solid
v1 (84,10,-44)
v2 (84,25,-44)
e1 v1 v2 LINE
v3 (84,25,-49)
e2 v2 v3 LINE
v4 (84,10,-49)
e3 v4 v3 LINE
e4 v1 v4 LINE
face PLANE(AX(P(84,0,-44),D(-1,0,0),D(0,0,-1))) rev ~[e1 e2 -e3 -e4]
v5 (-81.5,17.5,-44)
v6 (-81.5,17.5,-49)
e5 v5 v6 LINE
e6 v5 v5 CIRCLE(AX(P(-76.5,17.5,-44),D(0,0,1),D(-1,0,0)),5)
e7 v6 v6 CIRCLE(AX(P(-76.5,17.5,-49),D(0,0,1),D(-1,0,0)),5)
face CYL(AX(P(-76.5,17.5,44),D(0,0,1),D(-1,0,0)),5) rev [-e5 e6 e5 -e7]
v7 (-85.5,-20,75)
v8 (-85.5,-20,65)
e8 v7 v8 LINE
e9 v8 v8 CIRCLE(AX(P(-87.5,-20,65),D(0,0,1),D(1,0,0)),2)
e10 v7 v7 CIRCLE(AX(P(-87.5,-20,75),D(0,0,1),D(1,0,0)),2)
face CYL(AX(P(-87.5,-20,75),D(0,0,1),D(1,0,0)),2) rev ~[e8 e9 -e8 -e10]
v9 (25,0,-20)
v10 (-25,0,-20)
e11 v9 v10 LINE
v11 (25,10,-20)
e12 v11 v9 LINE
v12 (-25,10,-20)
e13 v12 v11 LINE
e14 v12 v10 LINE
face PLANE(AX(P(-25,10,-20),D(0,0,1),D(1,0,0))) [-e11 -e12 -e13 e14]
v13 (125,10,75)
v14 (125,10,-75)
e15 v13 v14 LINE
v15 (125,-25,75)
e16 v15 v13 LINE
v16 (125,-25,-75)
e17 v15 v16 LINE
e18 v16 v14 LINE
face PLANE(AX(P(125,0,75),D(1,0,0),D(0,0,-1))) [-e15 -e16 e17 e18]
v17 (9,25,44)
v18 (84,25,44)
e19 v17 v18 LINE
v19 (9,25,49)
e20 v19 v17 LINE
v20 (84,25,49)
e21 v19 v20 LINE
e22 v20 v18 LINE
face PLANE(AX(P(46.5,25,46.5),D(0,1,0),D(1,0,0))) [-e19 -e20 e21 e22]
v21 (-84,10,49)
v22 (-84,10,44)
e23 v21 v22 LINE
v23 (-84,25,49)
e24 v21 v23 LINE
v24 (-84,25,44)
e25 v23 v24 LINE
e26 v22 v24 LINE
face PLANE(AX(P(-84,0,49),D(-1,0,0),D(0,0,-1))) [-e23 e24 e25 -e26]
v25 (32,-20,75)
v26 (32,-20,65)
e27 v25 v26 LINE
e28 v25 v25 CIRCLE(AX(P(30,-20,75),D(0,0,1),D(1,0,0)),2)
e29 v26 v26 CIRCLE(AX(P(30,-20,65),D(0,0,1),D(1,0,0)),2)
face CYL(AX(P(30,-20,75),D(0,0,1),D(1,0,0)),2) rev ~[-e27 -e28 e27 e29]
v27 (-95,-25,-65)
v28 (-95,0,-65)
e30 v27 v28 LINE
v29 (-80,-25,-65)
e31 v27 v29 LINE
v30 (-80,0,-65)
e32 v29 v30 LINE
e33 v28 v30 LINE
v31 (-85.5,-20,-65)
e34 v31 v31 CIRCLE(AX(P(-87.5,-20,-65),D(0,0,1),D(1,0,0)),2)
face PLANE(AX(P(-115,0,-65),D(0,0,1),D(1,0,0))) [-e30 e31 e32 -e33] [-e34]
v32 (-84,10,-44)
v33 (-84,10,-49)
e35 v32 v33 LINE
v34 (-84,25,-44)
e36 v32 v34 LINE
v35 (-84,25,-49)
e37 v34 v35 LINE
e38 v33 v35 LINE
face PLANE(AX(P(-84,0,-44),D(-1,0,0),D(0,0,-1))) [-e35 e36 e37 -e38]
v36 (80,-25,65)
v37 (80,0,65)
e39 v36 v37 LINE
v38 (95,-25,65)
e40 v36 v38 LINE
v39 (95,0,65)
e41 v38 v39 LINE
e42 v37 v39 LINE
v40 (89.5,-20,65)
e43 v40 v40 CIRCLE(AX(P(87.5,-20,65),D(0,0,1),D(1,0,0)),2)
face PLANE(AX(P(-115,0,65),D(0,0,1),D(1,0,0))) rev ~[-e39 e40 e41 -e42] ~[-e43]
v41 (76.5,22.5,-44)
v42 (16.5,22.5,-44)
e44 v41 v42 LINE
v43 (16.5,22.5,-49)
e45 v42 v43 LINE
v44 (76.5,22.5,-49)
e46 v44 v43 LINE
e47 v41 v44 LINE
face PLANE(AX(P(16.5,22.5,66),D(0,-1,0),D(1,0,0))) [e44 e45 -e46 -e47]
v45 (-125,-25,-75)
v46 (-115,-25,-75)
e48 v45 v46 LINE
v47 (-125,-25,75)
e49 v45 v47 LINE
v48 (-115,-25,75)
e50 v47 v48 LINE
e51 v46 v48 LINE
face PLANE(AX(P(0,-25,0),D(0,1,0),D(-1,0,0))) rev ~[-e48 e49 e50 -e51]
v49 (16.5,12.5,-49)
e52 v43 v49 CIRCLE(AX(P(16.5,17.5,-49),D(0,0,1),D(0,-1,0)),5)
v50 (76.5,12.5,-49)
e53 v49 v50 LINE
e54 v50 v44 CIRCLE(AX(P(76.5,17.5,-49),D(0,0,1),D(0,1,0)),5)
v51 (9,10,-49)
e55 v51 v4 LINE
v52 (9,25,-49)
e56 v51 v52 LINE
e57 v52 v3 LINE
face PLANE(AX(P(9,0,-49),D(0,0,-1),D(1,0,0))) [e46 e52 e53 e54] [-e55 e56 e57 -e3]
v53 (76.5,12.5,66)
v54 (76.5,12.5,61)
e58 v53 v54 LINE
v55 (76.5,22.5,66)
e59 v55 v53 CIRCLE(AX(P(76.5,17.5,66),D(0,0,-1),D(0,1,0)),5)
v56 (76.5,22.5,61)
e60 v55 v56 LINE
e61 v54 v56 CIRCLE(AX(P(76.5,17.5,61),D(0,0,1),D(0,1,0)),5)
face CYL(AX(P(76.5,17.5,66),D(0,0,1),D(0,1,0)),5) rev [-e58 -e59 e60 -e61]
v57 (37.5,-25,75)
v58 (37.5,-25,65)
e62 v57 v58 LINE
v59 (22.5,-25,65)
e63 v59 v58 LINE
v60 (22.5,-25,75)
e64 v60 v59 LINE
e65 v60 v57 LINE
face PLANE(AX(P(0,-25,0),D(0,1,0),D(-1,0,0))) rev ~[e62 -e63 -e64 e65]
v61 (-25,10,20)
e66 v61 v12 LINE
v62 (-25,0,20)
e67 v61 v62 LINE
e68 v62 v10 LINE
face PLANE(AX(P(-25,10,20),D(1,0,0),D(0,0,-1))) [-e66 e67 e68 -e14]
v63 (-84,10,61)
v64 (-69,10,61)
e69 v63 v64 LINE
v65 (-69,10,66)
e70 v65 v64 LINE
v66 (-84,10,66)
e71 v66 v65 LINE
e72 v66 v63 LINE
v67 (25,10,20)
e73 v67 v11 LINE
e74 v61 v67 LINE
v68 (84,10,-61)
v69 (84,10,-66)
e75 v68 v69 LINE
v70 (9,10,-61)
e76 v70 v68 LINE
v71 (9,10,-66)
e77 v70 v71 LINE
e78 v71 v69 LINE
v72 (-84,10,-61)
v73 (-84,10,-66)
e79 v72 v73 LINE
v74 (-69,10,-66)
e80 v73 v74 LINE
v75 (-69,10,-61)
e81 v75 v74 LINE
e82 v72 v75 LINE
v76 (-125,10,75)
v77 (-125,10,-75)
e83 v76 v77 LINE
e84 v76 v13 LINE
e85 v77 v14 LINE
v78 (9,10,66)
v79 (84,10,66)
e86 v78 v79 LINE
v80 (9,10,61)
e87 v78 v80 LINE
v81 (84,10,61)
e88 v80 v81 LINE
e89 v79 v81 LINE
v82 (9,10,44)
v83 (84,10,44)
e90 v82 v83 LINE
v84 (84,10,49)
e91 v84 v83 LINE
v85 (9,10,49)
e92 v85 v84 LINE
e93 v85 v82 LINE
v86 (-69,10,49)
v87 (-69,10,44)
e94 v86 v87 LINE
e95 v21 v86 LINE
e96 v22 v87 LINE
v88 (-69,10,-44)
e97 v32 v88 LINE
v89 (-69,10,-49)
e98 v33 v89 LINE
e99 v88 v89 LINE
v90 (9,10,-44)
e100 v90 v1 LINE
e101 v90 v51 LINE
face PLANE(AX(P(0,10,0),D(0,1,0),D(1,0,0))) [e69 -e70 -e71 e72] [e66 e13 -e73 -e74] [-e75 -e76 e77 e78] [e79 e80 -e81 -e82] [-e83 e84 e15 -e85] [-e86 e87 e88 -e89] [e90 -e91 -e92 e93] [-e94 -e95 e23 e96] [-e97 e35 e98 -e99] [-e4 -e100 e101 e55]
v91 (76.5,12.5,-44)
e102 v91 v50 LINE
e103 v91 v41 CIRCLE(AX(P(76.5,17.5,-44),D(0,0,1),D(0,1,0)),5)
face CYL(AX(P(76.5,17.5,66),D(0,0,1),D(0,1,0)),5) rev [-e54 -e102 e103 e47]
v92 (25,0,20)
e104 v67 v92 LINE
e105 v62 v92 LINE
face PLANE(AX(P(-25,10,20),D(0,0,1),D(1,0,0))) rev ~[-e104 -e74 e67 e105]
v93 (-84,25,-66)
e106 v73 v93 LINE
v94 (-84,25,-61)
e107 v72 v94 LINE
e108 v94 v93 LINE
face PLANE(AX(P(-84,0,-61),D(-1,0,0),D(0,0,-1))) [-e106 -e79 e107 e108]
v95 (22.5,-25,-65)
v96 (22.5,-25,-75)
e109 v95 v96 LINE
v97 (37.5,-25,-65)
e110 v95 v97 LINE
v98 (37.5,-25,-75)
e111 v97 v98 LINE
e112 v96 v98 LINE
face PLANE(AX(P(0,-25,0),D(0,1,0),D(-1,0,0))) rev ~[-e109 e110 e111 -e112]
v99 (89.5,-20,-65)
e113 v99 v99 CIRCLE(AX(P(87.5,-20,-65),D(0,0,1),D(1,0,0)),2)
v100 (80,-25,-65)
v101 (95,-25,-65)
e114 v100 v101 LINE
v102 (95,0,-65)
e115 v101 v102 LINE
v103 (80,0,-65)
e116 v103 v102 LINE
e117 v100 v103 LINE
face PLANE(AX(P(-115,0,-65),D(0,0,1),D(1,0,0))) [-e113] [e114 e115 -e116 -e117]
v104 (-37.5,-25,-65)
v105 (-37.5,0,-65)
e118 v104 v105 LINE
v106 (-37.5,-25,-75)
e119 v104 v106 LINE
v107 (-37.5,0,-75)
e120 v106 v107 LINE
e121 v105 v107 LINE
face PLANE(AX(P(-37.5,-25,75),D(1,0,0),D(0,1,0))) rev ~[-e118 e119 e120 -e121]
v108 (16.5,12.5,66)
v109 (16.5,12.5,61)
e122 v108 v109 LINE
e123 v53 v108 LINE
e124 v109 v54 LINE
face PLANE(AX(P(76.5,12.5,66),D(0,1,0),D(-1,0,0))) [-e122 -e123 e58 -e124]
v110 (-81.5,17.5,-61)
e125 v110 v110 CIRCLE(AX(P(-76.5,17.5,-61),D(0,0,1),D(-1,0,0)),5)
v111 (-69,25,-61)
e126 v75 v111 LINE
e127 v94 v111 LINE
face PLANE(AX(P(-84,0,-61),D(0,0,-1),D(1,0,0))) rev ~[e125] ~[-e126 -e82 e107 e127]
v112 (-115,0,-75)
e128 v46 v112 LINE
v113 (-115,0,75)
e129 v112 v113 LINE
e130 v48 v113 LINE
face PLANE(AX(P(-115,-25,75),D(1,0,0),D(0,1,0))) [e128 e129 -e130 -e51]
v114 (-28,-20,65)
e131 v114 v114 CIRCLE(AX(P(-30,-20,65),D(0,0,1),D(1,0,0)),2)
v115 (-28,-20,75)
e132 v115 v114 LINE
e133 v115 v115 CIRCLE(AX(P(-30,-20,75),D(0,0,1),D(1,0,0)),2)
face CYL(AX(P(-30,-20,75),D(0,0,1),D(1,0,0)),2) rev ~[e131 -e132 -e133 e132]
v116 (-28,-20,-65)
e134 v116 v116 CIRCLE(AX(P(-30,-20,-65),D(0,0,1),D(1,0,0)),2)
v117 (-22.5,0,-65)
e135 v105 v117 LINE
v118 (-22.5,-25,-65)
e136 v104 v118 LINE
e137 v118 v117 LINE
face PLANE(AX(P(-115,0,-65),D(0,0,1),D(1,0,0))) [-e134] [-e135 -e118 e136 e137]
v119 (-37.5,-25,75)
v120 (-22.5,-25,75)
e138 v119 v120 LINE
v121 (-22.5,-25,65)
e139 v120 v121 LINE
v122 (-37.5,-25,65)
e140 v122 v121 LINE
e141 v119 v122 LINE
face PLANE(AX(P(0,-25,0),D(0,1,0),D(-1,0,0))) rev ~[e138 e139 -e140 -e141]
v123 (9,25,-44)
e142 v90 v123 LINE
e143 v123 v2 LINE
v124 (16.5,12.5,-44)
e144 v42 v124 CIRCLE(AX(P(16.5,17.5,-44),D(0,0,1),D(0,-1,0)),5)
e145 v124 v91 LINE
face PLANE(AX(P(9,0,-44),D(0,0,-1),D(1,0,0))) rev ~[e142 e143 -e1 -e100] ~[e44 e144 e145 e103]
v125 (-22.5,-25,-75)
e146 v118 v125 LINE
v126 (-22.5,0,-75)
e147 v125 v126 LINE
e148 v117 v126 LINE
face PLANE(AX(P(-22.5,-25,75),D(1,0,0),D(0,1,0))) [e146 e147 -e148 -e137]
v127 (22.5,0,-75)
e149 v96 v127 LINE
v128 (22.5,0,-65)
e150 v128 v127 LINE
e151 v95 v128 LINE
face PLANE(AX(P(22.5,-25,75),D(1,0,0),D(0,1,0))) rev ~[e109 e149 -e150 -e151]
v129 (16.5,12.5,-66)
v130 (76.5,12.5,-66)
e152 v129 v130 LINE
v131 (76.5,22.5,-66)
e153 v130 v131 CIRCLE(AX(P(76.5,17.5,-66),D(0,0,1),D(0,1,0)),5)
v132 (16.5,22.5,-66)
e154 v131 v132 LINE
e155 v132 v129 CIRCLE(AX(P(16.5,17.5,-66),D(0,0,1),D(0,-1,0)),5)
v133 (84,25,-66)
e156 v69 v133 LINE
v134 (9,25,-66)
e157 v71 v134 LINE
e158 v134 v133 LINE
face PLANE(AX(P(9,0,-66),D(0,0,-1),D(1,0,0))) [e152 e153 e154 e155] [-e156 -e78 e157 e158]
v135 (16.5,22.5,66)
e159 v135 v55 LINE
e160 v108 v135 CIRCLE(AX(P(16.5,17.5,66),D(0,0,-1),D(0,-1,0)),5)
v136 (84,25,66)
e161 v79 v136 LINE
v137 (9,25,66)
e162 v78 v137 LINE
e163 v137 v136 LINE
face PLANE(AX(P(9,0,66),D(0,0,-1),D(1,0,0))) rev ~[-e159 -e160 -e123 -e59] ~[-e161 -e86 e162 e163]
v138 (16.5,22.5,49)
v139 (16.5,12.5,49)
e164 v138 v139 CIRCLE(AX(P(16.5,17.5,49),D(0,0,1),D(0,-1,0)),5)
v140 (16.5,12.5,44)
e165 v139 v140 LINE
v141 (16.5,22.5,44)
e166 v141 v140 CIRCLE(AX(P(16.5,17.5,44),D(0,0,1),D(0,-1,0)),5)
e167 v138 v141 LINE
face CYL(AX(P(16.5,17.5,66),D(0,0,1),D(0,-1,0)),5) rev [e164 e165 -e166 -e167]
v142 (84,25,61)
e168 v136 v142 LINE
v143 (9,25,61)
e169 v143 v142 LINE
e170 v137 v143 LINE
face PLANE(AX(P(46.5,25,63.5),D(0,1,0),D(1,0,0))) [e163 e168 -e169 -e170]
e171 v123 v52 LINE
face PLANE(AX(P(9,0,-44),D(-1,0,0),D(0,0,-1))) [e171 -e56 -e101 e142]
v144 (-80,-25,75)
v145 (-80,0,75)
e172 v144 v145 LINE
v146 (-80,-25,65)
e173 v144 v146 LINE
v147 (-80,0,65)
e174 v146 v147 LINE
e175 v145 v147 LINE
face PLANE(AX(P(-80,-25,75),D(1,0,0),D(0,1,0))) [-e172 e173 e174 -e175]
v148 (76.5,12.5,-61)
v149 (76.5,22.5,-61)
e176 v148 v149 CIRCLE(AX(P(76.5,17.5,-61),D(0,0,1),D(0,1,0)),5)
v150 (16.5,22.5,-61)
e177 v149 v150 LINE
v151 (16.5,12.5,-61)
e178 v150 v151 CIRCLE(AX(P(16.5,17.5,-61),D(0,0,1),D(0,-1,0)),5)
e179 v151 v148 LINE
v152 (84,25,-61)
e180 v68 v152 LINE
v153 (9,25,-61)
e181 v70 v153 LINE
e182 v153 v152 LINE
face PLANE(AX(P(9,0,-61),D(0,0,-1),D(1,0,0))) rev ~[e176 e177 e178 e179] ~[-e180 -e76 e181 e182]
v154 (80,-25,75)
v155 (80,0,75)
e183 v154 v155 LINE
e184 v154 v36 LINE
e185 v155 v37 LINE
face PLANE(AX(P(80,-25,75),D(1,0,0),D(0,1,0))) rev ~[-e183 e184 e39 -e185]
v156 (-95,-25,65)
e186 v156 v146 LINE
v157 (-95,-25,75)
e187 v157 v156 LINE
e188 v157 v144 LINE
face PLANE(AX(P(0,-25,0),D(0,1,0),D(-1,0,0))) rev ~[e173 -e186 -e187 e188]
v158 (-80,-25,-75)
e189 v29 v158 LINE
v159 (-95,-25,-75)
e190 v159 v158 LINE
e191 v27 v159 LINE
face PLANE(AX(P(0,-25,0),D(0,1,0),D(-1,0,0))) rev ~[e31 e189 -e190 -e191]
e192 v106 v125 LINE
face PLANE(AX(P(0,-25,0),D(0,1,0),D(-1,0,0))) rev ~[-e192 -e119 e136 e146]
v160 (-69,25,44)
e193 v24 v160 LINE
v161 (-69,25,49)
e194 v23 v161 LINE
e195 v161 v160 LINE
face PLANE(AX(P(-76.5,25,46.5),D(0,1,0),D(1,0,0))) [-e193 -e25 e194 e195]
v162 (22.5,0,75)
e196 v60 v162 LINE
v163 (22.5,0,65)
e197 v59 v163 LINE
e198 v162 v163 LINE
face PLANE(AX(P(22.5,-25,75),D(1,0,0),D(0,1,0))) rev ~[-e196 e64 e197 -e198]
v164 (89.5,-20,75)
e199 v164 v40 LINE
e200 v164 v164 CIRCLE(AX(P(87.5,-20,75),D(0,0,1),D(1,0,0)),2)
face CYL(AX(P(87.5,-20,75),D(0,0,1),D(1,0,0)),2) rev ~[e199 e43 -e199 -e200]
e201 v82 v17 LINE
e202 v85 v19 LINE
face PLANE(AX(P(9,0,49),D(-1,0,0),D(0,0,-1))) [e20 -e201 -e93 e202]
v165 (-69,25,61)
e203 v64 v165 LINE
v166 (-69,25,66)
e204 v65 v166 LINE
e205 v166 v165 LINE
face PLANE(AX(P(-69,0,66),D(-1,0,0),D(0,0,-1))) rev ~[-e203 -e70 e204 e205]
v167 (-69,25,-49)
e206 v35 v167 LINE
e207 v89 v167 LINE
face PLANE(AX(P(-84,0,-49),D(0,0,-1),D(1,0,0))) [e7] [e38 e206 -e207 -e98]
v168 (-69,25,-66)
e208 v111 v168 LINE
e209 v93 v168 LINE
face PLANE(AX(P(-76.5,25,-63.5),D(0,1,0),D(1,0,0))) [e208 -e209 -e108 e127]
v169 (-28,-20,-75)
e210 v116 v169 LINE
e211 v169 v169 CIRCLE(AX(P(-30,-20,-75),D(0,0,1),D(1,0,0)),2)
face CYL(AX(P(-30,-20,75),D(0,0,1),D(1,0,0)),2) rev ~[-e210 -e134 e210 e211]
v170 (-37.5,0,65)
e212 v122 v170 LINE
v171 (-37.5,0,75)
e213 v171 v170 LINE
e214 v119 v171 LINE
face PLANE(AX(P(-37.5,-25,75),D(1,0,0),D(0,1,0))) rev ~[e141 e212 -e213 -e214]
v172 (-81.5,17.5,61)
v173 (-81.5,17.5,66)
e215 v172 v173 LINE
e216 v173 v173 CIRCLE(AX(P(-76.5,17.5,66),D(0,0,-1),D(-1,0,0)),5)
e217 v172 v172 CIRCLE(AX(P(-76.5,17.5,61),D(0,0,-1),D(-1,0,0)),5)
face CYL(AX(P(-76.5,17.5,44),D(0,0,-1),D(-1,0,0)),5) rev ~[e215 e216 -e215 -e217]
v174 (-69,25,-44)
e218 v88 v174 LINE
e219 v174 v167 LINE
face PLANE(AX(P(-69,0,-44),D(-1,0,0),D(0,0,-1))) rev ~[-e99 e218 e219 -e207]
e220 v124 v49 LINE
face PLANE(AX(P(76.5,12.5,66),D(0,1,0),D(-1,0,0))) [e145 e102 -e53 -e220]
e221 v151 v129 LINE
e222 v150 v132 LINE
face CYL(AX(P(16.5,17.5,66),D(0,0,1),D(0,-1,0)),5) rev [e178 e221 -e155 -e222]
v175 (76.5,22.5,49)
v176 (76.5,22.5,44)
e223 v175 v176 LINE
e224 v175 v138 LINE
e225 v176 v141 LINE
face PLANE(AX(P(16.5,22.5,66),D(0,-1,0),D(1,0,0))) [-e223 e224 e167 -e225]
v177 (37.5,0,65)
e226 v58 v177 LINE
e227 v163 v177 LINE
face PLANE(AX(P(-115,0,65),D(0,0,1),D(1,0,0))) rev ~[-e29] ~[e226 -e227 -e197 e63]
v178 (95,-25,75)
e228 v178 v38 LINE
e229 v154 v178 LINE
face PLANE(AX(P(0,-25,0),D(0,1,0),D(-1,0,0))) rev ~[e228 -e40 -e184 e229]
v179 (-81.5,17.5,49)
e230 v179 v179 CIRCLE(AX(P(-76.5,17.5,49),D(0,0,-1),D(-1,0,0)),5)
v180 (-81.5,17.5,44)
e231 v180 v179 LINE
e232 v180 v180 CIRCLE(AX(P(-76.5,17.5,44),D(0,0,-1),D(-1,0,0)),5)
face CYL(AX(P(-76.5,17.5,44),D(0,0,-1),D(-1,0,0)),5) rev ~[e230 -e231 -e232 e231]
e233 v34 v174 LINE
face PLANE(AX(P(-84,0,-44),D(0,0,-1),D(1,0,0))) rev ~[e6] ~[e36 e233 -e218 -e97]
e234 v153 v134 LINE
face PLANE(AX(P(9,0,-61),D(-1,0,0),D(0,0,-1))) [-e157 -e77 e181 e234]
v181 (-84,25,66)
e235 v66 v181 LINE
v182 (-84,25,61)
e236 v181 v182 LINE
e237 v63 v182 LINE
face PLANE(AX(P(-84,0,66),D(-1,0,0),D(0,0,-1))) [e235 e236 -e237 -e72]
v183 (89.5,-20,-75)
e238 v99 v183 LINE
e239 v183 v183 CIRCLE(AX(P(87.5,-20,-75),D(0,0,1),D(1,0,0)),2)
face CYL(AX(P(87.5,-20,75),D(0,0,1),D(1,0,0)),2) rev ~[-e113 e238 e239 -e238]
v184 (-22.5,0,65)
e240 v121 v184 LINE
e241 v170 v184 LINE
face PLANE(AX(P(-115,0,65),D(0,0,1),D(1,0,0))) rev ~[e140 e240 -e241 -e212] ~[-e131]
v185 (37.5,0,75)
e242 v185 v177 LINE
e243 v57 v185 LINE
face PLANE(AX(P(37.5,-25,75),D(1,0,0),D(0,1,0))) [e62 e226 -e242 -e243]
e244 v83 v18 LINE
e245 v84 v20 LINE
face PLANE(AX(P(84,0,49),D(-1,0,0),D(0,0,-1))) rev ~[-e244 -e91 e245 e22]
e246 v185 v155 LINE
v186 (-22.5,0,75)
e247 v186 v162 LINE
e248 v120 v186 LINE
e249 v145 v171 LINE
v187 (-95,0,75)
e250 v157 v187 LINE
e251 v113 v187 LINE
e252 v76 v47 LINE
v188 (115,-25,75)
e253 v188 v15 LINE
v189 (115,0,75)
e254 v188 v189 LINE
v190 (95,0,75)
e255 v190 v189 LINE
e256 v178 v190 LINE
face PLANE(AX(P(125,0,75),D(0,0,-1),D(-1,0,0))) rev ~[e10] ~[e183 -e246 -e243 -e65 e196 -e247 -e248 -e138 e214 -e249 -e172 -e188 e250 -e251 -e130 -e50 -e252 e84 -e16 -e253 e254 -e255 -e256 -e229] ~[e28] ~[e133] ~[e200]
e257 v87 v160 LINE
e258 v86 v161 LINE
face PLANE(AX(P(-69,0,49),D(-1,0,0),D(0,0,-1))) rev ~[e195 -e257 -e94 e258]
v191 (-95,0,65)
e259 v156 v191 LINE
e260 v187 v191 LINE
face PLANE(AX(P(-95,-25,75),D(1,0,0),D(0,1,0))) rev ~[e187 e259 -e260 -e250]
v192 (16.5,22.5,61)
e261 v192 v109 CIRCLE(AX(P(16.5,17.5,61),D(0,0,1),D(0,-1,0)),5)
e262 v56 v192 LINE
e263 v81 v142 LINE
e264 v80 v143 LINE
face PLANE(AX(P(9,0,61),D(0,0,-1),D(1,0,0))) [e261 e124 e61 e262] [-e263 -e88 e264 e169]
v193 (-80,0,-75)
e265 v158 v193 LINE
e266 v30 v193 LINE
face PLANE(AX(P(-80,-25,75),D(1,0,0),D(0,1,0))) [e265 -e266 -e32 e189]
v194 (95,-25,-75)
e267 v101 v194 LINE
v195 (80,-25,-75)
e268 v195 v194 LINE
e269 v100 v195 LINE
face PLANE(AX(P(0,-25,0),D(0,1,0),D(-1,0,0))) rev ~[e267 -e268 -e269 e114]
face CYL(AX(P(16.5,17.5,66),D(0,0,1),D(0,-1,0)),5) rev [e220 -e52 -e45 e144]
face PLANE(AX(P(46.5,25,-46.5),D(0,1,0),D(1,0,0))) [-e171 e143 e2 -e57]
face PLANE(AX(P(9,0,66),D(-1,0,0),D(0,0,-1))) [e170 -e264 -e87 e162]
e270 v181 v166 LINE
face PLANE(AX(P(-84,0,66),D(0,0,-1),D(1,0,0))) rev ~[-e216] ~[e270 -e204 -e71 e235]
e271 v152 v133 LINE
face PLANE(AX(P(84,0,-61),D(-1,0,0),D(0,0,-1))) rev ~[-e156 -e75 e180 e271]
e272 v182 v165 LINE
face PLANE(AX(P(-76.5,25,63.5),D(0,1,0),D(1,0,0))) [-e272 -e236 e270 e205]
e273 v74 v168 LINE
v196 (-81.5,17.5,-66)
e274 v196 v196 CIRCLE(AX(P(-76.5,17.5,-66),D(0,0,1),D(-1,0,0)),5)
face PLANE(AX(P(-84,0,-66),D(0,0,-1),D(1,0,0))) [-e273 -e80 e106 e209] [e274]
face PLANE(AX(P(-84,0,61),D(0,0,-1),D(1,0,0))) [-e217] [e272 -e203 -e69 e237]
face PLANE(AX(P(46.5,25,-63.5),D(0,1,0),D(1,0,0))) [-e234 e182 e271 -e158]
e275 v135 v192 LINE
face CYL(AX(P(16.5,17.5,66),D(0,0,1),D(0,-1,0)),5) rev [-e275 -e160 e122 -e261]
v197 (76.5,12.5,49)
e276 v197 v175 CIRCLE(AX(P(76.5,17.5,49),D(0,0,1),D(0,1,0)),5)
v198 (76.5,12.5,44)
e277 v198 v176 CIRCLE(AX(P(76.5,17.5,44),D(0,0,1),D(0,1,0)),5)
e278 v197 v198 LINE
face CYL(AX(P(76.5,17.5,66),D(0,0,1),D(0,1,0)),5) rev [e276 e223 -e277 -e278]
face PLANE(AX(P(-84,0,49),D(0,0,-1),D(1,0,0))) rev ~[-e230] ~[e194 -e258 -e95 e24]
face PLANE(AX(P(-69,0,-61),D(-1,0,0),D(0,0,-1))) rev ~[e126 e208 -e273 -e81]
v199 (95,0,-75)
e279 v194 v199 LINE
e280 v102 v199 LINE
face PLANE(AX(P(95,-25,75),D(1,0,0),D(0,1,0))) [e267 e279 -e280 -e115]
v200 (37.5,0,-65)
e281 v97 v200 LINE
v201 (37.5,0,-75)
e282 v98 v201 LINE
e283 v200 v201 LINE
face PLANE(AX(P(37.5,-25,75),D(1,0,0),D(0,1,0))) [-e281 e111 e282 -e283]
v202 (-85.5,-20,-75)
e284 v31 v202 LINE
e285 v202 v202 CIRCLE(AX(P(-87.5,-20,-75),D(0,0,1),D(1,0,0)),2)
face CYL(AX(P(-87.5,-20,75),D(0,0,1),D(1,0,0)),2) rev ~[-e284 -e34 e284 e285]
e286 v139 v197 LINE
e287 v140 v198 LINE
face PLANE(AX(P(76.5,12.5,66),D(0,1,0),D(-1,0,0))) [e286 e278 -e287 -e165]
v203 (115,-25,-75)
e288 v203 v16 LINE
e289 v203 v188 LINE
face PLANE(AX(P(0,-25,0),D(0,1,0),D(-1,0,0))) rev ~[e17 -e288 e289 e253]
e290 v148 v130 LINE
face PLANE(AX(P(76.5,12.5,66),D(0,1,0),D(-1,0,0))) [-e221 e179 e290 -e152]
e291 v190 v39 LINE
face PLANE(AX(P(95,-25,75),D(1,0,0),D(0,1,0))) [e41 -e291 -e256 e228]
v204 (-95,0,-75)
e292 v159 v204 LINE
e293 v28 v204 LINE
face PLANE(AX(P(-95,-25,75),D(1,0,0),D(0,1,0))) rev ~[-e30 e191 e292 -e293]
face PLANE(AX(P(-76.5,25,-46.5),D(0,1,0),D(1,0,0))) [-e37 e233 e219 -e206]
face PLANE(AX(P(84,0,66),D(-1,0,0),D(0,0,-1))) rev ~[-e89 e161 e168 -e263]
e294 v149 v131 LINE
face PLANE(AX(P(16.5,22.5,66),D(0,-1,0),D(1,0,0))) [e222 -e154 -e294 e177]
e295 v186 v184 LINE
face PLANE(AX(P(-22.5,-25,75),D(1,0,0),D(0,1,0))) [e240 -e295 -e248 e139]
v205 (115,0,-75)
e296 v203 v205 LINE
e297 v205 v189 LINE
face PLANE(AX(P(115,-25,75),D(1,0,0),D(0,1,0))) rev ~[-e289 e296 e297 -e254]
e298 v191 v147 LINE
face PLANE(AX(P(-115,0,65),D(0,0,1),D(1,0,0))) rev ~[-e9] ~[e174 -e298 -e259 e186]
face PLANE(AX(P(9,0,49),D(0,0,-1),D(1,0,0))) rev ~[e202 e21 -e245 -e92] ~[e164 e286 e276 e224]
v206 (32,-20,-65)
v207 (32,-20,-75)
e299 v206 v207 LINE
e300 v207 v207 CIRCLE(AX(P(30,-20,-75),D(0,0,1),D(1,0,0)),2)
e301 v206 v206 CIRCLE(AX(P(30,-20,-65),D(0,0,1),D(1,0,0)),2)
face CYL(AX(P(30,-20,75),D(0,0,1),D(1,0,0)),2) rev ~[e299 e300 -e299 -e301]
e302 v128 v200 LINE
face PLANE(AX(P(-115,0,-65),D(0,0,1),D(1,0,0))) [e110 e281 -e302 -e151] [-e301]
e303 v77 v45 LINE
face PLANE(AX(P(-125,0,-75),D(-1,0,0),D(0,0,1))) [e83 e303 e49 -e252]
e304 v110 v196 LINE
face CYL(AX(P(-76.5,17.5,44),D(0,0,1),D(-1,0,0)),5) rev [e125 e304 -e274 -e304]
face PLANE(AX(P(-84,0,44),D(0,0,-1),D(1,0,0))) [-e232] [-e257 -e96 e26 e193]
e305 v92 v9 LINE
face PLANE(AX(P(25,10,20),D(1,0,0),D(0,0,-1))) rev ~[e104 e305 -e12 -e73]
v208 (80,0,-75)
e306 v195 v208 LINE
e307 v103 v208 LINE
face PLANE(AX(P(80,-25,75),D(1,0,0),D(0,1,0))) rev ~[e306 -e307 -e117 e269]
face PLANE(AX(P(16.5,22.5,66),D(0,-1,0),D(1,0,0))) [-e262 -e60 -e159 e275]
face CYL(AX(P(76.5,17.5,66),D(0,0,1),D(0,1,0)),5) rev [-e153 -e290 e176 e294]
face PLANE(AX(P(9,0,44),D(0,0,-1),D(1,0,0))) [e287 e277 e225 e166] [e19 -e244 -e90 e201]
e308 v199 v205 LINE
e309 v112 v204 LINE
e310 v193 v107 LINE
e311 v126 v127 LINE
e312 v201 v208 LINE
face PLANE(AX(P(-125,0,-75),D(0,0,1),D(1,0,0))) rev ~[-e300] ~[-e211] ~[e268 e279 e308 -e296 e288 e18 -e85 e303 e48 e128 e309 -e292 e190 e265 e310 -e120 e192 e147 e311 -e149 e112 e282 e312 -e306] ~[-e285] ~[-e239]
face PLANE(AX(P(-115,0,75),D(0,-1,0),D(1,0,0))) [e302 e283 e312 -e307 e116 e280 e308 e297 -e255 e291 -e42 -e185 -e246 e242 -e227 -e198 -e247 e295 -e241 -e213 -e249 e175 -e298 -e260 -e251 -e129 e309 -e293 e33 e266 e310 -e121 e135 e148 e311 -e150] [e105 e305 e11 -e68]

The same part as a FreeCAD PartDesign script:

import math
import FreeCAD as App
import Part
import Sketcher

V = App.Vector
Q = App.Units.Quantity

doc = App.newDocument("Part")
body = doc.addObject("PartDesign::Body", "Body")

sketch1 = doc.addObject("Sketcher::SketchObject", "Sketch")
body.addObject(sketch1)
sketch1.AttachmentSupport = (doc.XZ_Plane, [""])
sketch1.MapMode = "FlatFace"
sketch1.addGeometry([
    Part.LineSegment(V(-125, -75, 0), V(-125, 75, 0)),
    Part.LineSegment(V(-125, 75, 0), V(125, 75, 0)),
    Part.LineSegment(V(125, 75, 0), V(125, -75, 0)),
    Part.LineSegment(V(125, -75, 0), V(-125, -75, 0)),
    Part.LineSegment(V(-69, 66, 0), V(-84, 66, 0)),
    Part.LineSegment(V(-84, 66, 0), V(-84, 61, 0)),
    Part.LineSegment(V(-84, 61, 0), V(-69, 61, 0)),
    Part.LineSegment(V(-69, 61, 0), V(-69, 66, 0)),
    Part.LineSegment(V(-69, 49, 0), V(-84, 49, 0)),
    Part.LineSegment(V(-84, 49, 0), V(-84, 44, 0)),
    Part.LineSegment(V(-84, 44, 0), V(-69, 44, 0)),
    Part.LineSegment(V(-69, 44, 0), V(-69, 49, 0)),
    Part.LineSegment(V(84, 66, 0), V(9, 66, 0)),
    Part.LineSegment(V(9, 66, 0), V(9, 61, 0)),
    Part.LineSegment(V(9, 61, 0), V(84, 61, 0)),
    Part.LineSegment(V(84, 61, 0), V(84, 66, 0)),
    Part.LineSegment(V(84, 49, 0), V(9, 49, 0)),
    Part.LineSegment(V(9, 49, 0), V(9, 44, 0)),
    Part.LineSegment(V(9, 44, 0), V(84, 44, 0)),
    Part.LineSegment(V(84, 44, 0), V(84, 49, 0)),
    Part.LineSegment(V(-69, -44, 0), V(-84, -44, 0)),
    Part.LineSegment(V(-84, -44, 0), V(-84, -49, 0)),
    Part.LineSegment(V(-84, -49, 0), V(-69, -49, 0)),
    Part.LineSegment(V(-69, -49, 0), V(-69, -44, 0)),
    Part.LineSegment(V(-69, -61, 0), V(-84, -61, 0)),
    Part.LineSegment(V(-84, -61, 0), V(-84, -66, 0)),
    Part.LineSegment(V(-84, -66, 0), V(-69, -66, 0)),
    Part.LineSegment(V(-69, -66, 0), V(-69, -61, 0)),
    Part.LineSegment(V(84, -44, 0), V(9, -44, 0)),
    Part.LineSegment(V(9, -44, 0), V(9, -49, 0)),
    Part.LineSegment(V(9, -49, 0), V(84, -49, 0)),
    Part.LineSegment(V(84, -49, 0), V(84, -44, 0)),
    Part.LineSegment(V(84, -61, 0), V(9, -61, 0)),
    Part.LineSegment(V(9, -61, 0), V(9, -66, 0)),
    Part.LineSegment(V(9, -66, 0), V(84, -66, 0)),
    Part.LineSegment(V(84, -66, 0), V(84, -61, 0)),
], False)
sketch1.addConstraint([
    Sketcher.Constraint("Coincident", 0, 2, 1, 1),
    Sketcher.Constraint("Coincident", 1, 2, 2, 1),
    Sketcher.Constraint("Coincident", 2, 2, 3, 1),
    Sketcher.Constraint("Coincident", 3, 2, 0, 1),
    Sketcher.Constraint("Coincident", 4, 2, 5, 1),
    Sketcher.Constraint("Coincident", 5, 2, 6, 1),
    Sketcher.Constraint("Coincident", 6, 2, 7, 1),
    Sketcher.Constraint("Coincident", 7, 2, 4, 1),
    Sketcher.Constraint("Coincident", 8, 2, 9, 1),
    Sketcher.Constraint("Coincident", 9, 2, 10, 1),
    Sketcher.Constraint("Coincident", 10, 2, 11, 1),
    Sketcher.Constraint("Coincident", 11, 2, 8, 1),
    Sketcher.Constraint("Coincident", 12, 2, 13, 1),
    Sketcher.Constraint("Coincident", 13, 2, 14, 1),
    Sketcher.Constraint("Coincident", 14, 2, 15, 1),
    Sketcher.Constraint("Coincident", 15, 2, 12, 1),
    Sketcher.Constraint("Coincident", 16, 2, 17, 1),
    Sketcher.Constraint("Coincident", 17, 2, 18, 1),
    Sketcher.Constraint("Coincident", 18, 2, 19, 1),
    Sketcher.Constraint("Coincident", 19, 2, 16, 1),
    Sketcher.Constraint("Coincident", 20, 2, 21, 1),
    Sketcher.Constraint("Coincident", 21, 2, 22, 1),
    Sketcher.Constraint("Coincident", 22, 2, 23, 1),
    Sketcher.Constraint("Coincident", 23, 2, 20, 1),
    Sketcher.Constraint("Coincident", 24, 2, 25, 1),
    Sketcher.Constraint("Coincident", 25, 2, 26, 1),
    Sketcher.Constraint("Coincident", 26, 2, 27, 1),
    Sketcher.Constraint("Coincident", 27, 2, 24, 1),
    Sketcher.Constraint("Coincident", 28, 2, 29, 1),
    Sketcher.Constraint("Coincident", 29, 2, 30, 1),
    Sketcher.Constraint("Coincident", 30, 2, 31, 1),
    Sketcher.Constraint("Coincident", 31, 2, 28, 1),
    Sketcher.Constraint("Coincident", 32, 2, 33, 1),
    Sketcher.Constraint("Coincident", 33, 2, 34, 1),
    Sketcher.Constraint("Coincident", 34, 2, 35, 1),
    Sketcher.Constraint("Coincident", 35, 2, 32, 1),
    Sketcher.Constraint("Vertical", 0),
    Sketcher.Constraint("Horizontal", 1),
    Sketcher.Constraint("Vertical", 2),
    Sketcher.Constraint("Horizontal", 3),
    Sketcher.Constraint("Horizontal", 4),
    Sketcher.Constraint("Vertical", 5),
    Sketcher.Constraint("Horizontal", 6),
    Sketcher.Constraint("Vertical", 7),
    Sketcher.Constraint("Horizontal", 8),
    Sketcher.Constraint("Vertical", 9),
    Sketcher.Constraint("Horizontal", 10),
    Sketcher.Constraint("Vertical", 11),
    Sketcher.Constraint("Horizontal", 12),
    Sketcher.Constraint("Vertical", 13),
    Sketcher.Constraint("Horizontal", 14),
    Sketcher.Constraint("Vertical", 15),
    Sketcher.Constraint("Horizontal", 16),
    Sketcher.Constraint("Vertical", 17),
    Sketcher.Constraint("Horizontal", 18),
    Sketcher.Constraint("Vertical", 19),
    Sketcher.Constraint("Horizontal", 20),
    Sketcher.Constraint("Vertical", 21),
    Sketcher.Constraint("Horizontal", 22),
    Sketcher.Constraint("Vertical", 23),
    Sketcher.Constraint("Horizontal", 24),
    Sketcher.Constraint("Vertical", 25),
    Sketcher.Constraint("Horizontal", 26),
    Sketcher.Constraint("Vertical", 27),
    Sketcher.Constraint("Horizontal", 28),
    Sketcher.Constraint("Vertical", 29),
    Sketcher.Constraint("Horizontal", 30),
    Sketcher.Constraint("Vertical", 31),
    Sketcher.Constraint("Horizontal", 32),
    Sketcher.Constraint("Vertical", 33),
    Sketcher.Constraint("Horizontal", 34),
    Sketcher.Constraint("Vertical", 35),
    Sketcher.Constraint("Symmetric", 0, 2, 2, 2, -1, 1),
    Sketcher.Constraint("Symmetric", 18, 2, 20, 2, -1, 1),
    Sketcher.Constraint("Symmetric", 14, 2, 24, 2, -1, 1),
    Sketcher.Constraint("Symmetric", 8, 2, 30, 2, -1, 1),
    Sketcher.Constraint("Symmetric", 4, 2, 34, 2, -1, 1),
    Sketcher.Constraint("Symmetric", 5, 2, 14, 2, -2),
    Sketcher.Constraint("Symmetric", 9, 2, 18, 2, -2),
    Sketcher.Constraint("Symmetric", 11, 2, 22, 2, -1),
    Sketcher.Constraint("Symmetric", 7, 2, 26, 2, -1),
    Sketcher.Constraint("Symmetric", 17, 2, 28, 2, -1),
    Sketcher.Constraint("Symmetric", 13, 2, 32, 2, -1),
    Sketcher.Constraint("Horizontal", 7, 2, 12, 2),
    Sketcher.Constraint("Horizontal", 11, 2, 16, 2),
    Sketcher.Constraint("Vertical", 5, 2, 8, 2),
    Sketcher.Constraint("Vertical", 7, 2, 10, 2),
    Sketcher.Constraint("Vertical", 13, 2, 16, 2),
    Sketcher.Constraint("Equal", 7, 9),
    Sketcher.Constraint("DistanceX", 1, 1, 1, 2, Q("250 mm")),
    Sketcher.Constraint("DistanceX", 4, 2, 4, 1, Q("15 mm")),
    Sketcher.Constraint("DistanceX", 12, 2, 12, 1, Q("75 mm")),
    Sketcher.Constraint("DistanceY", 0, 1, 0, 2, Q("150 mm")),
    Sketcher.Constraint("DistanceY", 5, 2, 5, 1, Q("5 mm")),
    Sketcher.Constraint("DistanceX", 4, 2, -1, 1, Q("84 mm")),
    Sketcher.Constraint("DistanceY", -1, 1, 4, 2, Q("66 mm")),
    Sketcher.Constraint("DistanceY", -1, 1, 8, 2, Q("49 mm")),
])
pad1 = doc.addObject("PartDesign::Pad", "Pad")
body.addObject(pad1)
pad1.Profile = sketch1
pad1.Length = 10
pad1.Reversed = True

sketch2 = doc.addObject("Sketcher::SketchObject", "Sketch001")
body.addObject(sketch2)
sketch2.AttachmentSupport = (doc.XZ_Plane, [""])
sketch2.MapMode = "FlatFace"
sketch2.addGeometry([
    Part.LineSegment(V(9, 61, 0), V(9, 66, 0)),
    Part.LineSegment(V(9, 66, 0), V(84, 66, 0)),
    Part.LineSegment(V(84, 66, 0), V(84, 61, 0)),
    Part.LineSegment(V(84, 61, 0), V(9, 61, 0)),
    Part.LineSegment(V(-84, 61, 0), V(-84, 66, 0)),
    Part.LineSegment(V(-84, 66, 0), V(-69, 66, 0)),
    Part.LineSegment(V(-69, 66, 0), V(-69, 61, 0)),
    Part.LineSegment(V(-69, 61, 0), V(-84, 61, 0)),
    Part.LineSegment(V(-84, 44, 0), V(-84, 49, 0)),
    Part.LineSegment(V(-84, 49, 0), V(-69, 49, 0)),
    Part.LineSegment(V(-69, 49, 0), V(-69, 44, 0)),
    Part.LineSegment(V(-69, 44, 0), V(-84, 44, 0)),
    Part.LineSegment(V(9, 44, 0), V(9, 49, 0)),
    Part.LineSegment(V(9, 49, 0), V(84, 49, 0)),
    Part.LineSegment(V(84, 49, 0), V(84, 44, 0)),
    Part.LineSegment(V(84, 44, 0), V(9, 44, 0)),
    Part.LineSegment(V(9, -49, 0), V(9, -44, 0)),
    Part.LineSegment(V(9, -44, 0), V(84, -44, 0)),
    Part.LineSegment(V(84, -44, 0), V(84, -49, 0)),
    Part.LineSegment(V(84, -49, 0), V(9, -49, 0)),
    Part.LineSegment(V(9, -66, 0), V(9, -61, 0)),
    Part.LineSegment(V(9, -61, 0), V(84, -61, 0)),
    Part.LineSegment(V(84, -61, 0), V(84, -66, 0)),
    Part.LineSegment(V(84, -66, 0), V(9, -66, 0)),
    Part.LineSegment(V(-84, -66, 0), V(-84, -61, 0)),
    Part.LineSegment(V(-84, -61, 0), V(-69, -61, 0)),
    Part.LineSegment(V(-69, -61, 0), V(-69, -66, 0)),
    Part.LineSegment(V(-69, -66, 0), V(-84, -66, 0)),
    Part.LineSegment(V(-84, -49, 0), V(-84, -44, 0)),
    Part.LineSegment(V(-84, -44, 0), V(-69, -44, 0)),
    Part.LineSegment(V(-69, -44, 0), V(-69, -49, 0)),
    Part.LineSegment(V(-69, -49, 0), V(-84, -49, 0)),
], False)
sketch2.addConstraint([
    Sketcher.Constraint("Coincident", 0, 2, 1, 1),
    Sketcher.Constraint("Coincident", 1, 2, 2, 1),
    Sketcher.Constraint("Coincident", 2, 2, 3, 1),
    Sketcher.Constraint("Coincident", 3, 2, 0, 1),
    Sketcher.Constraint("Coincident", 4, 2, 5, 1),
    Sketcher.Constraint("Coincident", 5, 2, 6, 1),
    Sketcher.Constraint("Coincident", 6, 2, 7, 1),
    Sketcher.Constraint("Coincident", 7, 2, 4, 1),
    Sketcher.Constraint("Coincident", 8, 2, 9, 1),
    Sketcher.Constraint("Coincident", 9, 2, 10, 1),
    Sketcher.Constraint("Coincident", 10, 2, 11, 1),
    Sketcher.Constraint("Coincident", 11, 2, 8, 1),
    Sketcher.Constraint("Coincident", 12, 2, 13, 1),
    Sketcher.Constraint("Coincident", 13, 2, 14, 1),
    Sketcher.Constraint("Coincident", 14, 2, 15, 1),
    Sketcher.Constraint("Coincident", 15, 2, 12, 1),
    Sketcher.Constraint("Coincident", 16, 2, 17, 1),
    Sketcher.Constraint("Coincident", 17, 2, 18, 1),
    Sketcher.Constraint("Coincident", 18, 2, 19, 1),
    Sketcher.Constraint("Coincident", 19, 2, 16, 1),
    Sketcher.Constraint("Coincident", 20, 2, 21, 1),
    Sketcher.Constraint("Coincident", 21, 2, 22, 1),
    Sketcher.Constraint("Coincident", 22, 2, 23, 1),
    Sketcher.Constraint("Coincident", 23, 2, 20, 1),
    Sketcher.Constraint("Coincident", 24, 2, 25, 1),
    Sketcher.Constraint("Coincident", 25, 2, 26, 1),
    Sketcher.Constraint("Coincident", 26, 2, 27, 1),
    Sketcher.Constraint("Coincident", 27, 2, 24, 1),
    Sketcher.Constraint("Coincident", 28, 2, 29, 1),
    Sketcher.Constraint("Coincident", 29, 2, 30, 1),
    Sketcher.Constraint("Coincident", 30, 2, 31, 1),
    Sketcher.Constraint("Coincident", 31, 2, 28, 1),
    Sketcher.Constraint("Vertical", 0),
    Sketcher.Constraint("Horizontal", 1),
    Sketcher.Constraint("Vertical", 2),
    Sketcher.Constraint("Horizontal", 3),
    Sketcher.Constraint("Vertical", 4),
    Sketcher.Constraint("Horizontal", 5),
    Sketcher.Constraint("Vertical", 6),
    Sketcher.Constraint("Horizontal", 7),
    Sketcher.Constraint("Vertical", 8),
    Sketcher.Constraint("Horizontal", 9),
    Sketcher.Constraint("Vertical", 10),
    Sketcher.Constraint("Horizontal", 11),
    Sketcher.Constraint("Vertical", 12),
    Sketcher.Constraint("Horizontal", 13),
    Sketcher.Constraint("Vertical", 14),
    Sketcher.Constraint("Horizontal", 15),
    Sketcher.Constraint("Vertical", 16),
    Sketcher.Constraint("Horizontal", 17),
    Sketcher.Constraint("Vertical", 18),
    Sketcher.Constraint("Horizontal", 19),
    Sketcher.Constraint("Vertical", 20),
    Sketcher.Constraint("Horizontal", 21),
    Sketcher.Constraint("Vertical", 22),
    Sketcher.Constraint("Horizontal", 23),
    Sketcher.Constraint("Vertical", 24),
    Sketcher.Constraint("Horizontal", 25),
    Sketcher.Constraint("Vertical", 26),
    Sketcher.Constraint("Horizontal", 27),
    Sketcher.Constraint("Vertical", 28),
    Sketcher.Constraint("Horizontal", 29),
    Sketcher.Constraint("Vertical", 30),
    Sketcher.Constraint("Horizontal", 31),
    Sketcher.Constraint("Symmetric", 11, 2, 17, 2, -1, 1),
    Sketcher.Constraint("Symmetric", 7, 2, 21, 2, -1, 1),
    Sketcher.Constraint("Symmetric", 2, 2, 24, 2, -1, 1),
    Sketcher.Constraint("Symmetric", 14, 2, 28, 2, -1, 1),
    Sketcher.Constraint("Symmetric", 1, 2, 4, 2, -2),
    Sketcher.Constraint("Symmetric", 8, 2, 13, 2, -2),
    Sketcher.Constraint("Symmetric", 15, 2, 16, 2, -1),
    Sketcher.Constraint("Symmetric", 3, 2, 20, 2, -1),
    Sketcher.Constraint("Symmetric", 5, 2, 26, 2, -1),
    Sketcher.Constraint("Symmetric", 9, 2, 30, 2, -1),
    Sketcher.Constraint("Horizontal", 23, 2, 26, 2),
    Sketcher.Constraint("Horizontal", 19, 2, 30, 2),
    Sketcher.Constraint("Vertical", 7, 2, 8, 2),
    Sketcher.Constraint("Vertical", 6, 2, 9, 2),
    Sketcher.Constraint("Vertical", 3, 2, 12, 2),
    Sketcher.Constraint("Equal", 6, 8),
    Sketcher.Constraint("DistanceX", 1, 1, 1, 2, Q("75 mm")),
    Sketcher.Constraint("DistanceX", 5, 1, 5, 2, Q("15 mm")),
    Sketcher.Constraint("DistanceY", 0, 1, 0, 2, Q("5 mm")),
    Sketcher.Constraint("DistanceX", -1, 1, 0, 2, Q("9 mm")),
    Sketcher.Constraint("DistanceY", -1, 1, 0, 2, Q("66 mm")),
    Sketcher.Constraint("DistanceY", -1, 1, 8, 2, Q("49 mm")),
])
pad2 = doc.addObject("PartDesign::Pad", "Pad001")
body.addObject(pad2)
pad2.Profile = sketch2
pad2.Length = 25
pad2.Reversed = True

sketch3 = doc.addObject("Sketcher::SketchObject", "Sketch002")
body.addObject(sketch3)
sketch3.AttachmentSupport = (doc.XZ_Plane, [""])
sketch3.MapMode = "FlatFace"
sketch3.addGeometry([
    Part.LineSegment(V(125, 75, 0), V(-125, 75, 0)),
    Part.LineSegment(V(-125, 75, 0), V(-125, -75, 0)),
    Part.LineSegment(V(-125, -75, 0), V(125, -75, 0)),
    Part.LineSegment(V(125, -75, 0), V(125, 75, 0)),
    Part.LineSegment(V(-115, -65, 0), V(-115, 65, 0)),
    Part.LineSegment(V(-115, 65, 0), V(115, 65, 0)),
    Part.LineSegment(V(115, 65, 0), V(115, -65, 0)),
    Part.LineSegment(V(115, -65, 0), V(-115, -65, 0)),
], False)
sketch3.addConstraint([
    Sketcher.Constraint("Coincident", 0, 2, 1, 1),
    Sketcher.Constraint("Coincident", 1, 2, 2, 1),
    Sketcher.Constraint("Coincident", 2, 2, 3, 1),
    Sketcher.Constraint("Coincident", 3, 2, 0, 1),
    Sketcher.Constraint("Coincident", 4, 2, 5, 1),
    Sketcher.Constraint("Coincident", 5, 2, 6, 1),
    Sketcher.Constraint("Coincident", 6, 2, 7, 1),
    Sketcher.Constraint("Coincident", 7, 2, 4, 1),
    Sketcher.Constraint("Horizontal", 0),
    Sketcher.Constraint("Vertical", 1),
    Sketcher.Constraint("Horizontal", 2),
    Sketcher.Constraint("Vertical", 3),
    Sketcher.Constraint("Vertical", 4),
    Sketcher.Constraint("Horizontal", 5),
    Sketcher.Constraint("Vertical", 6),
    Sketcher.Constraint("Horizontal", 7),
    Sketcher.Constraint("Symmetric", 0, 2, 2, 2, -1, 1),
    Sketcher.Constraint("Symmetric", 4, 2, 6, 2, -1, 1),
    Sketcher.Constraint("DistanceX", 0, 2, 0, 1, Q("250 mm")),
    Sketcher.Constraint("DistanceX", 5, 1, 5, 2, Q("230 mm")),
    Sketcher.Constraint("DistanceY", 1, 2, 1, 1, Q("150 mm")),
    Sketcher.Constraint("DistanceY", 4, 1, 4, 2, Q("130 mm")),
])
pad3 = doc.addObject("PartDesign::Pad", "Pad002")
body.addObject(pad3)
pad3.Profile = sketch3
pad3.Length = 25

sketch4 = doc.addObject("Sketcher::SketchObject", "Sketch003")
body.addObject(sketch4)
sketch4.AttachmentSupport = (doc.XY_Plane, [""])
sketch4.MapMode = "FlatFace"
sketch4.AttachmentOffset = App.Placement(V(0, 0, 44), App.Rotation())
sketch4.addGeometry(Part.Circle(V(-76, 18, 0), V(0, 0, 1), 5), False)
sketch4.addConstraint([
    Sketcher.Constraint("Diameter", 0, Q("10 mm")),
    Sketcher.Constraint("DistanceX", 0, 3, -1, 1, Q("76.5 mm")),
    Sketcher.Constraint("DistanceY", -1, 1, 0, 3, Q("17.5 mm")),
])
pocket1 = doc.addObject("PartDesign::Pocket", "Pocket")
body.addObject(pocket1)
pocket1.Profile = sketch4
pocket1.Type = "ThroughAll"
pocket1.Midplane = True

sketch5 = doc.addObject("Sketcher::SketchObject", "Sketch004")
body.addObject(sketch5)
sketch5.AttachmentSupport = (doc.XY_Plane, [""])
sketch5.MapMode = "FlatFace"
sketch5.AttachmentOffset = App.Placement(V(0, 0, 66), App.Rotation())
sketch5.addGeometry([
    Part.LineSegment(V(76, 22, 0), V(16, 22, 0)),
    Part.ArcOfCircle(Part.Circle(V(16, 18, 0), V(0, 0, 1), 5), math.radians(90), math.radians(270)),
    Part.LineSegment(V(16, 12, 0), V(76, 12, 0)),
    Part.ArcOfCircle(Part.Circle(V(76, 18, 0), V(0, 0, 1), 5), math.radians(-90), math.radians(90)),
], False)
sketch5.addConstraint([
    Sketcher.Constraint("Tangent", 0, 2, 1, 1),
    Sketcher.Constraint("Tangent", 1, 2, 2, 1),
    Sketcher.Constraint("Tangent", 2, 2, 3, 1),
    Sketcher.Constraint("Tangent", 3, 2, 0, 1),
    Sketcher.Constraint("Horizontal", 0),
    Sketcher.Constraint("Horizontal", 2),
    Sketcher.Constraint("Radius", 1, Q("5 mm")),
    Sketcher.Constraint("DistanceX", 0, 2, 0, 1, Q("60 mm")),
    Sketcher.Constraint("DistanceX", -1, 1, 1, 3, Q("16.5 mm")),
    Sketcher.Constraint("DistanceY", -1, 1, 1, 3, Q("17.5 mm")),
])
pocket2 = doc.addObject("PartDesign::Pocket", "Pocket001")
body.addObject(pocket2)
pocket2.Profile = sketch5
pocket2.Type = "ThroughAll"

sketch6 = doc.addObject("Sketcher::SketchObject", "Sketch005")
body.addObject(sketch6)
sketch6.AttachmentSupport = (doc.XZ_Plane, [""])
sketch6.MapMode = "FlatFace"
sketch6.AttachmentOffset = App.Placement(V(0, 0, -10), App.Rotation())
sketch6.addGeometry([
    Part.LineSegment(V(-25, -20, 0), V(-25, 20, 0)),
    Part.LineSegment(V(-25, 20, 0), V(25, 20, 0)),
    Part.LineSegment(V(25, 20, 0), V(25, -20, 0)),
    Part.LineSegment(V(25, -20, 0), V(-25, -20, 0)),
], False)
sketch6.addConstraint([
    Sketcher.Constraint("Coincident", 0, 2, 1, 1),
    Sketcher.Constraint("Coincident", 1, 2, 2, 1),
    Sketcher.Constraint("Coincident", 2, 2, 3, 1),
    Sketcher.Constraint("Coincident", 3, 2, 0, 1),
    Sketcher.Constraint("Vertical", 0),
    Sketcher.Constraint("Horizontal", 1),
    Sketcher.Constraint("Vertical", 2),
    Sketcher.Constraint("Horizontal", 3),
    Sketcher.Constraint("Symmetric", 0, 2, 2, 2, -1, 1),
    Sketcher.Constraint("DistanceX", 1, 1, 1, 2, Q("50 mm")),
    Sketcher.Constraint("DistanceY", 0, 1, 0, 2, Q("40 mm")),
])
pocket3 = doc.addObject("PartDesign::Pocket", "Pocket002")
body.addObject(pocket3)
pocket3.Profile = sketch6
pocket3.Length = 10
pocket3.Reversed = True

sketch7 = doc.addObject("Sketcher::SketchObject", "Sketch006")
body.addObject(sketch7)
sketch7.AttachmentSupport = (doc.XY_Plane, [""])
sketch7.MapMode = "FlatFace"
sketch7.AttachmentOffset = App.Placement(V(0, 0, 75), App.Rotation())
sketch7.addGeometry([
    Part.Circle(V(-87.5, -20, 0), V(0, 0, 1), 2),
    Part.Circle(V(87.5, -20, 0), V(0, 0, 1), 2),
    Part.Circle(V(-30, -20, 0), V(0, 0, 1), 2),
    Part.Circle(V(30, -20, 0), V(0, 0, 1), 2),
    Part.LineSegment(V(-80, 0, 0), V(-80, -25, 0)),
    Part.LineSegment(V(-80, -25, 0), V(-37.5, -25, 0)),
    Part.LineSegment(V(-37.5, -25, 0), V(-37.5, 0, 0)),
    Part.LineSegment(V(-37.5, 0, 0), V(-80, 0, 0)),
    Part.LineSegment(V(-115, 0, 0), V(-115, -25, 0)),
    Part.LineSegment(V(-115, -25, 0), V(-95, -25, 0)),
    Part.LineSegment(V(-95, -25, 0), V(-95, 0, 0)),
    Part.LineSegment(V(-95, 0, 0), V(-115, 0, 0)),
    Part.LineSegment(V(-22.5, 0, 0), V(-22.5, -25, 0)),
    Part.LineSegment(V(-22.5, -25, 0), V(22.5, -25, 0)),
    Part.LineSegment(V(22.5, -25, 0), V(22.5, 0, 0)),
    Part.LineSegment(V(22.5, 0, 0), V(-22.5, 0, 0)),
    Part.LineSegment(V(37.5, 0, 0), V(37.5, -25, 0)),
    Part.LineSegment(V(37.5, -25, 0), V(80, -25, 0)),
    Part.LineSegment(V(80, -25, 0), V(80, 0, 0)),
    Part.LineSegment(V(80, 0, 0), V(37.5, 0, 0)),
    Part.LineSegment(V(95, 0, 0), V(95, -25, 0)),
    Part.LineSegment(V(95, -25, 0), V(115, -25, 0)),
    Part.LineSegment(V(115, -25, 0), V(115, 0, 0)),
    Part.LineSegment(V(115, 0, 0), V(95, 0, 0)),
], False)
sketch7.addConstraint([
    Sketcher.Constraint("Coincident", 4, 2, 5, 1),
    Sketcher.Constraint("Coincident", 5, 2, 6, 1),
    Sketcher.Constraint("Coincident", 6, 2, 7, 1),
    Sketcher.Constraint("Coincident", 7, 2, 4, 1),
    Sketcher.Constraint("Coincident", 8, 2, 9, 1),
    Sketcher.Constraint("Coincident", 9, 2, 10, 1),
    Sketcher.Constraint("Coincident", 10, 2, 11, 1),
    Sketcher.Constraint("Coincident", 11, 2, 8, 1),
    Sketcher.Constraint("Coincident", 12, 2, 13, 1),
    Sketcher.Constraint("Coincident", 13, 2, 14, 1),
    Sketcher.Constraint("Coincident", 14, 2, 15, 1),
    Sketcher.Constraint("Coincident", 15, 2, 12, 1),
    Sketcher.Constraint("Coincident", 16, 2, 17, 1),
    Sketcher.Constraint("Coincident", 17, 2, 18, 1),
    Sketcher.Constraint("Coincident", 18, 2, 19, 1),
    Sketcher.Constraint("Coincident", 19, 2, 16, 1),
    Sketcher.Constraint("Coincident", 20, 2, 21, 1),
    Sketcher.Constraint("Coincident", 21, 2, 22, 1),
    Sketcher.Constraint("Coincident", 22, 2, 23, 1),
    Sketcher.Constraint("Coincident", 23, 2, 20, 1),
    Sketcher.Constraint("Vertical", 4),
    Sketcher.Constraint("Horizontal", 5),
    Sketcher.Constraint("Vertical", 6),
    Sketcher.Constraint("Horizontal", 7),
    Sketcher.Constraint("Vertical", 8),
    Sketcher.Constraint("Horizontal", 9),
    Sketcher.Constraint("Vertical", 10),
    Sketcher.Constraint("Horizontal", 11),
    Sketcher.Constraint("Vertical", 12),
    Sketcher.Constraint("Horizontal", 13),
    Sketcher.Constraint("Vertical", 14),
    Sketcher.Constraint("Horizontal", 15),
    Sketcher.Constraint("Vertical", 16),
    Sketcher.Constraint("Horizontal", 17),
    Sketcher.Constraint("Vertical", 18),
    Sketcher.Constraint("Horizontal", 19),
    Sketcher.Constraint("Vertical", 20),
    Sketcher.Constraint("Horizontal", 21),
    Sketcher.Constraint("Vertical", 22),
    Sketcher.Constraint("Horizontal", 23),
    Sketcher.Constraint("Equal", 0, 1),
    Sketcher.Constraint("Equal", 1, 2),
    Sketcher.Constraint("Equal", 2, 3),
    Sketcher.Constraint("Symmetric", 14, 2, 15, 2, -1, 1),
    Sketcher.Constraint("Symmetric", 7, 2, 18, 2, -1, 1),
    Sketcher.Constraint("Symmetric", 11, 2, 22, 2, -1, 1),
    Sketcher.Constraint("Symmetric", 0, 3, 1, 3, -2),
    Sketcher.Constraint("Symmetric", 2, 3, 3, 3, -2),
    Sketcher.Constraint("Symmetric", 5, 2, 16, 2, -2),
    Sketcher.Constraint("Symmetric", 9, 2, 20, 2, -2),
    Sketcher.Constraint("PointOnObject", 6, 2, -1),
    Sketcher.Constraint("PointOnObject", 10, 2, -1),
    Sketcher.Constraint("Horizontal", 1, 3, 2, 3),
    Sketcher.Constraint("Horizontal", 5, 2, 8, 2),
    Sketcher.Constraint("Horizontal", 9, 2, 12, 2),
    Sketcher.Constraint("Diameter", 0, Q("4 mm")),
    Sketcher.Constraint("DistanceX", 9, 1, 9, 2, Q("20 mm")),
    Sketcher.Constraint("DistanceX", 13, 1, 13, 2, Q("45 mm")),
    Sketcher.Constraint("DistanceY", 4, 2, 4, 1, Q("25 mm")),
    Sketcher.Constraint("DistanceX", 5, 1, 5, 2, Q("42.5 mm")),
    Sketcher.Constraint("DistanceY", 0, 3, -1, 1, Q("20 mm")),
    Sketcher.Constraint("DistanceX", 2, 3, -1, 1, Q("30 mm")),
    Sketcher.Constraint("DistanceX", 4, 2, -1, 1, Q("80 mm")),
    Sketcher.Constraint("DistanceX", 8, 2, -1, 1, Q("115 mm")),
    Sketcher.Constraint("DistanceX", 0, 3, 1, 3, Q("175 mm")),
])
pocket4 = doc.addObject("PartDesign::Pocket", "Pocket003")
body.addObject(pocket4)
pocket4.Profile = sketch7
pocket4.Type = "ThroughAll"
pocket4.Midplane = True

doc.recompute()
